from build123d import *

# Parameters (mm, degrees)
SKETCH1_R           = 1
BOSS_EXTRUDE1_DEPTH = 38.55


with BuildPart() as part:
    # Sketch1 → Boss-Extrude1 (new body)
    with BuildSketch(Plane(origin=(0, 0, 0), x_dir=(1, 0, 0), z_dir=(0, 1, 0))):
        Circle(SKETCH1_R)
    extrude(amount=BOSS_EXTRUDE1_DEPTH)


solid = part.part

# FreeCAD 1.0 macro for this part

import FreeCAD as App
import Part
import Sketcher
from FreeCAD import Vector

doc = App.newDocument("Part")
body = doc.addObject("PartDesign::Body", "Body")

# Sketch on XZ plane
sketch1 = body.newObject("Sketcher::SketchObject", "Sketch")
sketch1.AttachmentSupport = (doc.getObject("XZ_Plane"), [""])
sketch1.MapMode = "FlatFace"
sketch1.addGeometry(Part.Circle(Vector(0, 0, 0), Vector(0, 0, 1), 1), False)
sketch1.addConstraint(Sketcher.Constraint("Coincident", 0, 3, -1, 1))
sketch1.addConstraint(Sketcher.Constraint("Diameter", 0, 2.0))
pad1 = body.newObject("PartDesign::Pad", "Pad")
pad1.Profile = sketch1
pad1.Length = 38.55
pad1.Reversed = True

doc.recompute()
